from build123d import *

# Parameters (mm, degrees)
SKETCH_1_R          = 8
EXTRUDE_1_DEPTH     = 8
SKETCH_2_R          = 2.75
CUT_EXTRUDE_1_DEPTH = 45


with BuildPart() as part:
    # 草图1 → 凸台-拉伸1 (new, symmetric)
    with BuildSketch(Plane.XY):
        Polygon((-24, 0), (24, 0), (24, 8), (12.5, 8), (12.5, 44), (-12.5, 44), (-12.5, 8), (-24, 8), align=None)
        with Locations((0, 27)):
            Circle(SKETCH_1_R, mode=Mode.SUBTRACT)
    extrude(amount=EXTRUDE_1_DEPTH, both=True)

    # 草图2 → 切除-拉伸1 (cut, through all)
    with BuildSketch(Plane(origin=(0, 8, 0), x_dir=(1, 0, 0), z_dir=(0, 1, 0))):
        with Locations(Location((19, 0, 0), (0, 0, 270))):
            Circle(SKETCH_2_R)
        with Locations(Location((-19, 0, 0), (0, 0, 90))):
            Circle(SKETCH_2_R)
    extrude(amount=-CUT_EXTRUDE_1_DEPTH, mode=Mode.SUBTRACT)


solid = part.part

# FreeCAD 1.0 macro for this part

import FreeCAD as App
import Part
import Sketcher


def add_polygon(sketch, points):
    """Adds a closed chain of lines whose ends are joined by coincident constraints."""
    first, n = sketch.GeometryCount, len(points)
    for a, b in zip(points, points[1:] + points[:1]):
        sketch.addGeometry(Part.LineSegment(App.Vector(*a, 0), App.Vector(*b, 0)), False)
    for i in range(n):
        sketch.addConstraint(Sketcher.Constraint("Coincident", first + i, 2, first + (i + 1) % n, 1))

doc = App.newDocument("Part")
body = doc.addObject("PartDesign::Body", "Body")

sketch1 = body.newObject("Sketcher::SketchObject", "Sketch")
sketch1.AttachmentSupport = (doc.getObject("XY_Plane"), [""])
sketch1.MapMode = "FlatFace"
add_polygon(sketch1, [(-24, 0), (24, 0), (24, 8), (12, 8), (12, 44), (-12, 44), (-12, 8), (-24, 8)])
sketch1.addGeometry(Part.Circle(App.Vector(0, 27, 0), App.Vector(0, 0, 1), 8), False)
sketch1.addConstraint([
    Sketcher.Constraint("Horizontal", 0),
    Sketcher.Constraint("Vertical", 1),
    Sketcher.Constraint("Horizontal", 2),
    Sketcher.Constraint("Vertical", 3),
    Sketcher.Constraint("Horizontal", 4),
    Sketcher.Constraint("Vertical", 5),
    Sketcher.Constraint("Horizontal", 6),
    Sketcher.Constraint("Vertical", 7),
    Sketcher.Constraint("Symmetric", 0, 2, 7, 2, -1, 1),
    Sketcher.Constraint("Symmetric", 2, 2, 5, 2, -2),
    Sketcher.Constraint("PointOnObject", 8, 3, -2),
    Sketcher.Constraint("Diameter", 8, 16.0),
    Sketcher.Constraint("DistanceX", 0, 1, 0, 2, 48.0),
    Sketcher.Constraint("DistanceX", 4, 2, 4, 1, 25.0),
    Sketcher.Constraint("DistanceY", 1, 1, 1, 2, 8.0),
    Sketcher.Constraint("DistanceY", 3, 1, 3, 2, 36.0),
    Sketcher.Constraint("DistanceY", -1, 1, 8, 3, 27.0),
])
pad1 = body.newObject("PartDesign::Pad", "Pad")
pad1.Profile = sketch1
pad1.Length = 16
pad1.Midplane = True

sketch2 = body.newObject("Sketcher::SketchObject", "Sketch001")
sketch2.AttachmentSupport = (doc.getObject("XZ_Plane"), [""])
sketch2.MapMode = "FlatFace"
sketch2.AttachmentOffset = App.Placement(App.Vector(0, 0, -8), App.Rotation())
sketch2.addGeometry([
    Part.Circle(App.Vector(19, 0, 0), App.Vector(0, 0, 1), 2.8),
    Part.Circle(App.Vector(-19, 0, 0), App.Vector(0, 0, 1), 2.8),
], False)
sketch2.addConstraint([
    Sketcher.Constraint("Equal", 0, 1),
    Sketcher.Constraint("Symmetric", 0, 3, 1, 3, -1, 1),
    Sketcher.Constraint("PointOnObject", 0, 3, -1),
    Sketcher.Constraint("Diameter", 0, 5.5),
    Sketcher.Constraint("DistanceX", -1, 1, 0, 3, 19.0),
])
pocket1 = body.newObject("PartDesign::Pocket", "Pocket")
pocket1.Profile = sketch2
pocket1.Type = "ThroughAll"
pocket1.Reversed = True

doc.recompute()
